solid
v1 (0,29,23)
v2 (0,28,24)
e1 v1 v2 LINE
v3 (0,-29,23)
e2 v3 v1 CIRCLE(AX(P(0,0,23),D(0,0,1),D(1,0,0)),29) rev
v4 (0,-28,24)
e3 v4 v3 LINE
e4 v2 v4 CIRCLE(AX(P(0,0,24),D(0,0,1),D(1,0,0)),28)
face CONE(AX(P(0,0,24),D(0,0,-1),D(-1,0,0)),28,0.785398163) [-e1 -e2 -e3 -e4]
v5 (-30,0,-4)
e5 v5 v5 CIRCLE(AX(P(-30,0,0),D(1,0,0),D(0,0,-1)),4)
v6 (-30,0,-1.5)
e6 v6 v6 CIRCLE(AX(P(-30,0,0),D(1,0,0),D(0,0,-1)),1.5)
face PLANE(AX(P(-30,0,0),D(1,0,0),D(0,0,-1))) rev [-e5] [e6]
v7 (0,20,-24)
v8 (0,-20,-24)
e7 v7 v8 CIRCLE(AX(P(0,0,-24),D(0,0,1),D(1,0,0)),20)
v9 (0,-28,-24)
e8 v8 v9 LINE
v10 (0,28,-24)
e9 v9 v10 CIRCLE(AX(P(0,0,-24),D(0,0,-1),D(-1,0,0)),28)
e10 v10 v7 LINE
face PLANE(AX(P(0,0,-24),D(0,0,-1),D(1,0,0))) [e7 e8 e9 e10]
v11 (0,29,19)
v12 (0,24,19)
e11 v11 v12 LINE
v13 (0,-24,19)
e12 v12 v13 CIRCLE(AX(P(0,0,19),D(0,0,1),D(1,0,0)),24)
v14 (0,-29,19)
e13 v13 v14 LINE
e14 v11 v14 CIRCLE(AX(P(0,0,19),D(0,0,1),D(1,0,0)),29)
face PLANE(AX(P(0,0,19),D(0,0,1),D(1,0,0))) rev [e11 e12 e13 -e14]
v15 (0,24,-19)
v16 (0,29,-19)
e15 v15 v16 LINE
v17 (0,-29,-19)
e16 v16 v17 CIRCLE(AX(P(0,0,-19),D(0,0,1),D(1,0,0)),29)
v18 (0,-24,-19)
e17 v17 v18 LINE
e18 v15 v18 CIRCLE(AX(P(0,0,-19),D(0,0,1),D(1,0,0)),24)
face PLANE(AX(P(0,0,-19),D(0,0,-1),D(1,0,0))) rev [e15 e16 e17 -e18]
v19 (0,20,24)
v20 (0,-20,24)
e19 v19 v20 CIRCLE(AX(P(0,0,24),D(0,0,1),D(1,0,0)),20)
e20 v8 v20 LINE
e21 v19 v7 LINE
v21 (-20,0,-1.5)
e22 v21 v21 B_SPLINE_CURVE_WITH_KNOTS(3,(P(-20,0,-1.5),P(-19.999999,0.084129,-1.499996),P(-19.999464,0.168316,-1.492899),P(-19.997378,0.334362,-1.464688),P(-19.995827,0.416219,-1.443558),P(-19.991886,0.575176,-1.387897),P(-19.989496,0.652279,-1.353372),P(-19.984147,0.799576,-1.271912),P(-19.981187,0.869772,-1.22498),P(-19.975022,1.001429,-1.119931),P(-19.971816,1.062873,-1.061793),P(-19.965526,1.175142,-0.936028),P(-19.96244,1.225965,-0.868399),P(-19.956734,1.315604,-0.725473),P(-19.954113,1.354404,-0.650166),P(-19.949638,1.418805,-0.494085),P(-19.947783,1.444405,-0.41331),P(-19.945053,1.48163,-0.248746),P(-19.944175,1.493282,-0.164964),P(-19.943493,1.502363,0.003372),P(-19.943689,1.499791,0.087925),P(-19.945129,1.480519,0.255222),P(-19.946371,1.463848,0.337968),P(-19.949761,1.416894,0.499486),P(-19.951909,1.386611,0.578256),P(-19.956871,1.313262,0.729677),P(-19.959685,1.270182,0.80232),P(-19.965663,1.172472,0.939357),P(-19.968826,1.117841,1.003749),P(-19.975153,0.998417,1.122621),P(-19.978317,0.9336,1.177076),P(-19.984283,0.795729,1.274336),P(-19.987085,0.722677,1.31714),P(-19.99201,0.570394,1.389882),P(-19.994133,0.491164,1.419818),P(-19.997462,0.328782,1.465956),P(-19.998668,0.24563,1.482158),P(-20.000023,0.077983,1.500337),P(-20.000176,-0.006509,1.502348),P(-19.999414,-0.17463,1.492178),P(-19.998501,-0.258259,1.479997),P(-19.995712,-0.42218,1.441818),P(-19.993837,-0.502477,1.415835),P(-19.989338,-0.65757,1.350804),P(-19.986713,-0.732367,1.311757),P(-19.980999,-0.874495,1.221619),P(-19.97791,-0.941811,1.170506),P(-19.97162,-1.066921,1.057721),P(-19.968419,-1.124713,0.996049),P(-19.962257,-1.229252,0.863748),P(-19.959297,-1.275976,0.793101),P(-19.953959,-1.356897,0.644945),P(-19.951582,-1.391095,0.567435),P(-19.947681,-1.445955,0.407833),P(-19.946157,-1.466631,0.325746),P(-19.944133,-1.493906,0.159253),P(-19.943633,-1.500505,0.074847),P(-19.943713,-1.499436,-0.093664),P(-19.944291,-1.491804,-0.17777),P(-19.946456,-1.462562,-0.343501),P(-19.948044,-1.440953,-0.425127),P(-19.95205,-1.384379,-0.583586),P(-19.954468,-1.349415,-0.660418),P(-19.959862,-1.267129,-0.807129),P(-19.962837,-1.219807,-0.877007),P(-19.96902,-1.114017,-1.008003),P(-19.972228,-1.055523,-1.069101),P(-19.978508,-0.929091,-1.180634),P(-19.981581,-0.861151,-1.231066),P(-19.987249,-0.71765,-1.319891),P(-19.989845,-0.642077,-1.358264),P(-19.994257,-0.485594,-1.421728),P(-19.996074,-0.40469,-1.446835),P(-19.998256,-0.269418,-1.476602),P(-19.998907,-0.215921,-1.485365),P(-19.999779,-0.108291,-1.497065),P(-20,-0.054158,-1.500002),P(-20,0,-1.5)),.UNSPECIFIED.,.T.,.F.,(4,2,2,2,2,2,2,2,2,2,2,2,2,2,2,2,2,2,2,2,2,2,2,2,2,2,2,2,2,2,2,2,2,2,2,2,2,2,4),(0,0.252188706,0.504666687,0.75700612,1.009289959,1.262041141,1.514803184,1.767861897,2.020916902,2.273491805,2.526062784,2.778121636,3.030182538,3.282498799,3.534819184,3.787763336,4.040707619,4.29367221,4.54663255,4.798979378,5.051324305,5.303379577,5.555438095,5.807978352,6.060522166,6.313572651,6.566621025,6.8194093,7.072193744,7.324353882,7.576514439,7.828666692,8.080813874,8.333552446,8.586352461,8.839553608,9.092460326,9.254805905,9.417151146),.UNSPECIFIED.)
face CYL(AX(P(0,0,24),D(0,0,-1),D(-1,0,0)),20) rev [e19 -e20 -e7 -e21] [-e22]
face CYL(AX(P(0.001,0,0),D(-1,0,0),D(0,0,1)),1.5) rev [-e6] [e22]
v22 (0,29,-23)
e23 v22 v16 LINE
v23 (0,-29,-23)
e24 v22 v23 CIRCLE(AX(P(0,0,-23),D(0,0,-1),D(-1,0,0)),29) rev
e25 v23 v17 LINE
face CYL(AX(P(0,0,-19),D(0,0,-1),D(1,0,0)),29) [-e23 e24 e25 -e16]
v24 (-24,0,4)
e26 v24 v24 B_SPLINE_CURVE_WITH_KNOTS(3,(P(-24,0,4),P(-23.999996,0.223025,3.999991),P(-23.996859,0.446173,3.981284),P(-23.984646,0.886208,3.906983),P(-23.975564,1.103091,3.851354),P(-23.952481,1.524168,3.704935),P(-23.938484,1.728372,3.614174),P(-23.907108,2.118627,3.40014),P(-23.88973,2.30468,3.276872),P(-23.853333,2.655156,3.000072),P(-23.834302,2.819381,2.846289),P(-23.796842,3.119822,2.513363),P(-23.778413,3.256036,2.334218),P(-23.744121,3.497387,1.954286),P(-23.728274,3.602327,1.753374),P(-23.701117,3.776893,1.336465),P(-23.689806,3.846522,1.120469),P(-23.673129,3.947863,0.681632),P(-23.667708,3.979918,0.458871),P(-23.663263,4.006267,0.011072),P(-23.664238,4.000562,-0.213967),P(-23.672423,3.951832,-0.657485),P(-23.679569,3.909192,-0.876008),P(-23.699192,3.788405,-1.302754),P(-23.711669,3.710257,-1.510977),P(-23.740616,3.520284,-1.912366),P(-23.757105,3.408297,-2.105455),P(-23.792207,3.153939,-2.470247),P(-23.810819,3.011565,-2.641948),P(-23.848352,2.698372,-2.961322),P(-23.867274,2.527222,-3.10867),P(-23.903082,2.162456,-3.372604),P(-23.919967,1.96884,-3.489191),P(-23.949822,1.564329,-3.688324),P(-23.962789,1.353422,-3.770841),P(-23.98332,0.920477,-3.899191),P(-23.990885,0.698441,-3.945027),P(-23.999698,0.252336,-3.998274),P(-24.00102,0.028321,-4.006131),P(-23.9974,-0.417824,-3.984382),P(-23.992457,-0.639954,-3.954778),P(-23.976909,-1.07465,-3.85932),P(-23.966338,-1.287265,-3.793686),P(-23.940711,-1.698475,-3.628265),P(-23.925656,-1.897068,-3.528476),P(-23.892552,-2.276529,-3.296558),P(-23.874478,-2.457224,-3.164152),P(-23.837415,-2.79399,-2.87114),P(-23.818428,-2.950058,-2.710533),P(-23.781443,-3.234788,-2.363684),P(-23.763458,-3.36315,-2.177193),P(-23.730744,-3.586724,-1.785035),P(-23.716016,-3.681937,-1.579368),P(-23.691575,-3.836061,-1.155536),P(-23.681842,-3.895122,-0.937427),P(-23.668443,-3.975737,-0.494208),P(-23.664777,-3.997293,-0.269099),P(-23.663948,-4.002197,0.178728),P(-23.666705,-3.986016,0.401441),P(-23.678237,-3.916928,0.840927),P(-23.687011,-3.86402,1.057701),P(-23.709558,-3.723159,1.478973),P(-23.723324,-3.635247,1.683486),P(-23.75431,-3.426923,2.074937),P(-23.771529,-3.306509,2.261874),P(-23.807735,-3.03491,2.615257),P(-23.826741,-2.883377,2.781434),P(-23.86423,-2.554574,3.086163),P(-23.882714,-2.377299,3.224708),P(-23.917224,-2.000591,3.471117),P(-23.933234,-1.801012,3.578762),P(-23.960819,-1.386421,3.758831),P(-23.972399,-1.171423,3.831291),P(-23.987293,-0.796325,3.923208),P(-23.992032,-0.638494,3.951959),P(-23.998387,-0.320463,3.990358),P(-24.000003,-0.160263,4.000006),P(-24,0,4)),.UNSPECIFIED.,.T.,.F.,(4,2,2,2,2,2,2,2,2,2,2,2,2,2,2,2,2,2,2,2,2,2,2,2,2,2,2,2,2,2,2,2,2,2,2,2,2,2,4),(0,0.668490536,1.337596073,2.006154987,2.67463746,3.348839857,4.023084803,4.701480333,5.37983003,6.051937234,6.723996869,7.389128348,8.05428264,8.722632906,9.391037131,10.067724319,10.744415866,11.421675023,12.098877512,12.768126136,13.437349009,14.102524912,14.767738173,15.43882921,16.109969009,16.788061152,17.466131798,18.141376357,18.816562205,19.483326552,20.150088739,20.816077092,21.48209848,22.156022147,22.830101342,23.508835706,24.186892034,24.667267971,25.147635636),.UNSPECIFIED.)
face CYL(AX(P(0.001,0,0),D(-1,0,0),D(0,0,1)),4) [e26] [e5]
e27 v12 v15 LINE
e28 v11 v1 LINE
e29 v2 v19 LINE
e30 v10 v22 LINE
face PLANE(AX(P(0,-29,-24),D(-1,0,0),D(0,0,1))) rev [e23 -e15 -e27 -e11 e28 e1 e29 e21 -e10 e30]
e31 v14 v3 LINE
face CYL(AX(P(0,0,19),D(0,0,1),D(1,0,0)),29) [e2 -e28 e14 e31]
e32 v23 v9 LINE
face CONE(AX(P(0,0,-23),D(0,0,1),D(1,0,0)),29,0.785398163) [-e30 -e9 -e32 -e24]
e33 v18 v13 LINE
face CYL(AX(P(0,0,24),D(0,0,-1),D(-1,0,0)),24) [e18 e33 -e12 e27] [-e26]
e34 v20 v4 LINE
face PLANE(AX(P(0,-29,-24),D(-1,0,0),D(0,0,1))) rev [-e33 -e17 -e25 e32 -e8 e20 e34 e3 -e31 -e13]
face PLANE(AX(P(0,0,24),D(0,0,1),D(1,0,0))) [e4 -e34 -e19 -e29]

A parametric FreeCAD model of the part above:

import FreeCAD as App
import Part
import Sketcher

V = App.Vector
Q = App.Units.Quantity


def edges_at(feature, points):
    """Names of the edges that pass closest to the given points."""
    edges = feature.Shape.Edges
    near = lambda p: min(range(len(edges)), key=lambda i: edges[i].distToShape(Part.Vertex(*p))[0])
    return sorted({f"Edge{near(p) + 1}" for p in points})

doc = App.newDocument("Part")
body = doc.addObject("PartDesign::Body", "Body")

# Sketch on XY plane
sketch1 = body.newObject("Sketcher::SketchObject", "Sketch")
sketch1.AttachmentSupport = (doc.getObject("XY_Plane"), [""])
sketch1.MapMode = "FlatFace"
sketch1.addGeometry(Part.Circle(V(0, 0, 0), V(0, 0, 1), 24), False)
sketch1.addGeometry(Part.Circle(V(0, 0, 0), V(0, 0, 1), 20), False)
sketch1.addConstraint(Sketcher.Constraint("Coincident", 0, 3, -1, 1))
sketch1.addConstraint(Sketcher.Constraint("Coincident", 1, 3, -1, 1))
sketch1.addConstraint(Sketcher.Constraint("Diameter", 0, Q("48 mm")))
sketch1.addConstraint(Sketcher.Constraint("Diameter", 1, Q("40 mm")))
pad1 = body.newObject("PartDesign::Pad", "Pad")
pad1.Profile = sketch1
pad1.Length = 24

# Sketch on XY plane
sketch2 = body.newObject("Sketcher::SketchObject", "Sketch001")
sketch2.AttachmentSupport = (doc.getObject("XY_Plane"), [""])
sketch2.MapMode = "FlatFace"
sketch2.AttachmentOffset = App.Placement(V(0, 0, 24), App.Rotation())
sketch2.addGeometry(Part.Circle(V(0, 0, 0), V(0, 0, 1), 29), False)
sketch2.addGeometry(Part.Circle(V(0, 0, 0), V(0, 0, 1), 24), False)
sketch2.addConstraint(Sketcher.Constraint("Coincident", 0, 3, -1, 1))
sketch2.addConstraint(Sketcher.Constraint("Coincident", 1, 3, -1, 1))
sketch2.addConstraint(Sketcher.Constraint("Diameter", 0, Q("58 mm")))
sketch2.addConstraint(Sketcher.Constraint("Diameter", 1, Q("48 mm")))
pad2 = body.newObject("PartDesign::Pad", "Pad001")
pad2.Profile = sketch2
pad2.Length = 5
pad2.Reversed = True
body2 = doc.addObject("PartDesign::Body", "Body001")
doc.recompute()

body2.BaseFeature = body
doc.recompute()

mirroring = doc.addObject("Part::Mirroring", "Mirroring")
mirroring.Source = body
mirroring.Base = V(0, 0, 0)
mirroring.Normal = V(0, 0, 1)
body3 = doc.addObject("PartDesign::Body", "Body002")
body3.BaseFeature = mirroring
boolean = body2.newObject("PartDesign::Boolean", "Boolean")
boolean.Type = "Fuse"
boolean.addObjects([body3])
doc.recompute()

# Sketch on XY plane
sketch3 = body2.newObject("Sketcher::SketchObject", "Sketch002")
sketch3.AttachmentSupport = (doc.getObject("XY_Plane001"), [""])
sketch3.MapMode = "FlatFace"
sketch3.AttachmentOffset = App.Placement(V(0, 0, 24), App.Rotation())
sketch3.addGeometry(Part.LineSegment(V(0, 29, 0), V(0, -29, 0)), False)
sketch3.addGeometry(Part.LineSegment(V(0, -29, 0), V(29, -29, 0)), False)
sketch3.addGeometry(Part.LineSegment(V(29, -29, 0), V(29, 29, 0)), False)
sketch3.addGeometry(Part.LineSegment(V(29, 29, 0), V(0, 29, 0)), False)
sketch3.addConstraint(Sketcher.Constraint("Coincident", 0, 2, 1, 1))
sketch3.addConstraint(Sketcher.Constraint("Coincident", 1, 2, 2, 1))
sketch3.addConstraint(Sketcher.Constraint("Coincident", 2, 2, 3, 1))
sketch3.addConstraint(Sketcher.Constraint("Coincident", 3, 2, 0, 1))
sketch3.addConstraint(Sketcher.Constraint("Vertical", 0))
sketch3.addConstraint(Sketcher.Constraint("Horizontal", 1))
sketch3.addConstraint(Sketcher.Constraint("Vertical", 2))
sketch3.addConstraint(Sketcher.Constraint("Horizontal", 3))
sketch3.addConstraint(Sketcher.Constraint("Symmetric", 0, 2, 3, 2, -1, 1))
sketch3.addConstraint(Sketcher.Constraint("DistanceX", 1, 1, 1, 2, Q("29 mm")))
sketch3.addConstraint(Sketcher.Constraint("DistanceY", 0, 2, 0, 1, Q("58 mm")))
pocket1 = body2.newObject("PartDesign::Pocket", "Pocket")
pocket1.Profile = sketch3
pocket1.Type = "ThroughAll"
doc.recompute()

chamfer = body2.newObject("PartDesign::Chamfer", "Chamfer")
chamfer.Base = (pocket1, edges_at(pocket1, [(-29, 0, -24), (-29, 0, 24)]))
chamfer.Size = 1

# Sketch on YZ plane
sketch4 = body2.newObject("Sketcher::SketchObject", "Sketch003")
sketch4.AttachmentSupport = (doc.getObject("YZ_Plane001"), [""])
sketch4.MapMode = "FlatFace"
sketch4.AttachmentOffset = App.Placement(V(0, 0, -30), App.Rotation())
sketch4.addGeometry(Part.Circle(V(0, 0, 0), V(0, 0, 1), 4), False)
sketch4.addGeometry(Part.Circle(V(0, 0, 0), V(0, 0, 1), 1.5), False)
sketch4.addConstraint(Sketcher.Constraint("Coincident", 0, 3, -1, 1))
sketch4.addConstraint(Sketcher.Constraint("Coincident", 1, 3, -1, 1))
sketch4.addConstraint(Sketcher.Constraint("Diameter", 0, Q("8 mm")))
sketch4.addConstraint(Sketcher.Constraint("Diameter", 1, Q("3 mm")))
pad3 = body2.newObject("PartDesign::Pad", "Pad002")
pad3.Profile = sketch4
pad3.Length = 6.335681

# Sketch on YZ plane
sketch5 = body2.newObject("Sketcher::SketchObject", "Sketch004")
sketch5.AttachmentSupport = (doc.getObject("YZ_Plane001"), [""])
sketch5.MapMode = "FlatFace"
sketch5.addGeometry(Part.Circle(V(0, 0, 0), V(0, 0, 1), 1.5), False)
sketch5.addConstraint(Sketcher.Constraint("Coincident", 0, 3, -1, 1))
sketch5.addConstraint(Sketcher.Constraint("Diameter", 0, Q("3 mm")))
pocket2 = body2.newObject("PartDesign::Pocket", "Pocket001")
pocket2.Profile = sketch5
pocket2.Type = "ThroughAll"
mirroring.Visibility = False

doc.recompute()
